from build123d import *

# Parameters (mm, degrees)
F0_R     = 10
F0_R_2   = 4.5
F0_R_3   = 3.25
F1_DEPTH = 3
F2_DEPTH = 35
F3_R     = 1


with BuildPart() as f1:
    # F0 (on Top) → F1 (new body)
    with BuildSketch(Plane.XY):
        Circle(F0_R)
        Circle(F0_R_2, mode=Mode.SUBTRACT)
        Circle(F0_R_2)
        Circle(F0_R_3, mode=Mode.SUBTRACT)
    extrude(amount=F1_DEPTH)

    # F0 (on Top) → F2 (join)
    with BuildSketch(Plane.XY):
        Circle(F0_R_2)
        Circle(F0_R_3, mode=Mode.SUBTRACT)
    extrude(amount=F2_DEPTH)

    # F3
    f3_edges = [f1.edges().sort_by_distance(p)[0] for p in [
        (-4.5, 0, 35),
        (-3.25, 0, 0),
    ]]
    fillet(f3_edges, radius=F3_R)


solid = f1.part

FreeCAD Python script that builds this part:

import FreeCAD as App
import Part
import Sketcher


def edges_at(feature, points):
    """Names of the edges that pass closest to the given points."""
    edges = feature.Shape.Edges
    near = lambda p: min(range(len(edges)), key=lambda i: edges[i].distToShape(Part.Vertex(*p))[0])
    return sorted({f"Edge{near(p) + 1}" for p in points})

doc = App.newDocument("Part")
body = doc.addObject("PartDesign::Body", "Body")

sketch1 = body.newObject("Sketcher::SketchObject", "Sketch")
sketch1.AttachmentSupport = (doc.getObject("XY_Plane"), [""])
sketch1.MapMode = "FlatFace"
sketch1.addGeometry([
    Part.Circle(App.Vector(0, 0, 0), App.Vector(0, 0, 1), 10),
    Part.Circle(App.Vector(0, 0, 0), App.Vector(0, 0, 1), 3.2),
], False)
sketch1.addConstraint([
    Sketcher.Constraint("Coincident", 0, 3, -1, 1),
    Sketcher.Constraint("Coincident", 1, 3, -1, 1),
    Sketcher.Constraint("Diameter", 0, 20.0),
    Sketcher.Constraint("Diameter", 1, 6.5),
])
pad1 = body.newObject("PartDesign::Pad", "Pad")
pad1.Profile = sketch1
pad1.Length = 3

sketch2 = body.newObject("Sketcher::SketchObject", "Sketch001")
sketch2.AttachmentSupport = (doc.getObject("XY_Plane"), [""])
sketch2.MapMode = "FlatFace"
sketch2.addGeometry([
    Part.Circle(App.Vector(0, 0, 0), App.Vector(0, 0, 1), 4.5),
    Part.Circle(App.Vector(0, 0, 0), App.Vector(0, 0, 1), 3.2),
], False)
sketch2.addConstraint([
    Sketcher.Constraint("Coincident", 0, 3, -1, 1),
    Sketcher.Constraint("Coincident", 1, 3, -1, 1),
    Sketcher.Constraint("Diameter", 0, 9.0),
    Sketcher.Constraint("Diameter", 1, 6.5),
])
pad2 = body.newObject("PartDesign::Pad", "Pad001")
pad2.Profile = sketch2
pad2.Length = 35
doc.recompute()

fillet = body.newObject("PartDesign::Fillet", "Fillet")
fillet.Base = (pad2, edges_at(pad2, [(-4.5, 0, 35), (-3.25, 0, 0)]))
fillet.Radius = 1

doc.recompute()
